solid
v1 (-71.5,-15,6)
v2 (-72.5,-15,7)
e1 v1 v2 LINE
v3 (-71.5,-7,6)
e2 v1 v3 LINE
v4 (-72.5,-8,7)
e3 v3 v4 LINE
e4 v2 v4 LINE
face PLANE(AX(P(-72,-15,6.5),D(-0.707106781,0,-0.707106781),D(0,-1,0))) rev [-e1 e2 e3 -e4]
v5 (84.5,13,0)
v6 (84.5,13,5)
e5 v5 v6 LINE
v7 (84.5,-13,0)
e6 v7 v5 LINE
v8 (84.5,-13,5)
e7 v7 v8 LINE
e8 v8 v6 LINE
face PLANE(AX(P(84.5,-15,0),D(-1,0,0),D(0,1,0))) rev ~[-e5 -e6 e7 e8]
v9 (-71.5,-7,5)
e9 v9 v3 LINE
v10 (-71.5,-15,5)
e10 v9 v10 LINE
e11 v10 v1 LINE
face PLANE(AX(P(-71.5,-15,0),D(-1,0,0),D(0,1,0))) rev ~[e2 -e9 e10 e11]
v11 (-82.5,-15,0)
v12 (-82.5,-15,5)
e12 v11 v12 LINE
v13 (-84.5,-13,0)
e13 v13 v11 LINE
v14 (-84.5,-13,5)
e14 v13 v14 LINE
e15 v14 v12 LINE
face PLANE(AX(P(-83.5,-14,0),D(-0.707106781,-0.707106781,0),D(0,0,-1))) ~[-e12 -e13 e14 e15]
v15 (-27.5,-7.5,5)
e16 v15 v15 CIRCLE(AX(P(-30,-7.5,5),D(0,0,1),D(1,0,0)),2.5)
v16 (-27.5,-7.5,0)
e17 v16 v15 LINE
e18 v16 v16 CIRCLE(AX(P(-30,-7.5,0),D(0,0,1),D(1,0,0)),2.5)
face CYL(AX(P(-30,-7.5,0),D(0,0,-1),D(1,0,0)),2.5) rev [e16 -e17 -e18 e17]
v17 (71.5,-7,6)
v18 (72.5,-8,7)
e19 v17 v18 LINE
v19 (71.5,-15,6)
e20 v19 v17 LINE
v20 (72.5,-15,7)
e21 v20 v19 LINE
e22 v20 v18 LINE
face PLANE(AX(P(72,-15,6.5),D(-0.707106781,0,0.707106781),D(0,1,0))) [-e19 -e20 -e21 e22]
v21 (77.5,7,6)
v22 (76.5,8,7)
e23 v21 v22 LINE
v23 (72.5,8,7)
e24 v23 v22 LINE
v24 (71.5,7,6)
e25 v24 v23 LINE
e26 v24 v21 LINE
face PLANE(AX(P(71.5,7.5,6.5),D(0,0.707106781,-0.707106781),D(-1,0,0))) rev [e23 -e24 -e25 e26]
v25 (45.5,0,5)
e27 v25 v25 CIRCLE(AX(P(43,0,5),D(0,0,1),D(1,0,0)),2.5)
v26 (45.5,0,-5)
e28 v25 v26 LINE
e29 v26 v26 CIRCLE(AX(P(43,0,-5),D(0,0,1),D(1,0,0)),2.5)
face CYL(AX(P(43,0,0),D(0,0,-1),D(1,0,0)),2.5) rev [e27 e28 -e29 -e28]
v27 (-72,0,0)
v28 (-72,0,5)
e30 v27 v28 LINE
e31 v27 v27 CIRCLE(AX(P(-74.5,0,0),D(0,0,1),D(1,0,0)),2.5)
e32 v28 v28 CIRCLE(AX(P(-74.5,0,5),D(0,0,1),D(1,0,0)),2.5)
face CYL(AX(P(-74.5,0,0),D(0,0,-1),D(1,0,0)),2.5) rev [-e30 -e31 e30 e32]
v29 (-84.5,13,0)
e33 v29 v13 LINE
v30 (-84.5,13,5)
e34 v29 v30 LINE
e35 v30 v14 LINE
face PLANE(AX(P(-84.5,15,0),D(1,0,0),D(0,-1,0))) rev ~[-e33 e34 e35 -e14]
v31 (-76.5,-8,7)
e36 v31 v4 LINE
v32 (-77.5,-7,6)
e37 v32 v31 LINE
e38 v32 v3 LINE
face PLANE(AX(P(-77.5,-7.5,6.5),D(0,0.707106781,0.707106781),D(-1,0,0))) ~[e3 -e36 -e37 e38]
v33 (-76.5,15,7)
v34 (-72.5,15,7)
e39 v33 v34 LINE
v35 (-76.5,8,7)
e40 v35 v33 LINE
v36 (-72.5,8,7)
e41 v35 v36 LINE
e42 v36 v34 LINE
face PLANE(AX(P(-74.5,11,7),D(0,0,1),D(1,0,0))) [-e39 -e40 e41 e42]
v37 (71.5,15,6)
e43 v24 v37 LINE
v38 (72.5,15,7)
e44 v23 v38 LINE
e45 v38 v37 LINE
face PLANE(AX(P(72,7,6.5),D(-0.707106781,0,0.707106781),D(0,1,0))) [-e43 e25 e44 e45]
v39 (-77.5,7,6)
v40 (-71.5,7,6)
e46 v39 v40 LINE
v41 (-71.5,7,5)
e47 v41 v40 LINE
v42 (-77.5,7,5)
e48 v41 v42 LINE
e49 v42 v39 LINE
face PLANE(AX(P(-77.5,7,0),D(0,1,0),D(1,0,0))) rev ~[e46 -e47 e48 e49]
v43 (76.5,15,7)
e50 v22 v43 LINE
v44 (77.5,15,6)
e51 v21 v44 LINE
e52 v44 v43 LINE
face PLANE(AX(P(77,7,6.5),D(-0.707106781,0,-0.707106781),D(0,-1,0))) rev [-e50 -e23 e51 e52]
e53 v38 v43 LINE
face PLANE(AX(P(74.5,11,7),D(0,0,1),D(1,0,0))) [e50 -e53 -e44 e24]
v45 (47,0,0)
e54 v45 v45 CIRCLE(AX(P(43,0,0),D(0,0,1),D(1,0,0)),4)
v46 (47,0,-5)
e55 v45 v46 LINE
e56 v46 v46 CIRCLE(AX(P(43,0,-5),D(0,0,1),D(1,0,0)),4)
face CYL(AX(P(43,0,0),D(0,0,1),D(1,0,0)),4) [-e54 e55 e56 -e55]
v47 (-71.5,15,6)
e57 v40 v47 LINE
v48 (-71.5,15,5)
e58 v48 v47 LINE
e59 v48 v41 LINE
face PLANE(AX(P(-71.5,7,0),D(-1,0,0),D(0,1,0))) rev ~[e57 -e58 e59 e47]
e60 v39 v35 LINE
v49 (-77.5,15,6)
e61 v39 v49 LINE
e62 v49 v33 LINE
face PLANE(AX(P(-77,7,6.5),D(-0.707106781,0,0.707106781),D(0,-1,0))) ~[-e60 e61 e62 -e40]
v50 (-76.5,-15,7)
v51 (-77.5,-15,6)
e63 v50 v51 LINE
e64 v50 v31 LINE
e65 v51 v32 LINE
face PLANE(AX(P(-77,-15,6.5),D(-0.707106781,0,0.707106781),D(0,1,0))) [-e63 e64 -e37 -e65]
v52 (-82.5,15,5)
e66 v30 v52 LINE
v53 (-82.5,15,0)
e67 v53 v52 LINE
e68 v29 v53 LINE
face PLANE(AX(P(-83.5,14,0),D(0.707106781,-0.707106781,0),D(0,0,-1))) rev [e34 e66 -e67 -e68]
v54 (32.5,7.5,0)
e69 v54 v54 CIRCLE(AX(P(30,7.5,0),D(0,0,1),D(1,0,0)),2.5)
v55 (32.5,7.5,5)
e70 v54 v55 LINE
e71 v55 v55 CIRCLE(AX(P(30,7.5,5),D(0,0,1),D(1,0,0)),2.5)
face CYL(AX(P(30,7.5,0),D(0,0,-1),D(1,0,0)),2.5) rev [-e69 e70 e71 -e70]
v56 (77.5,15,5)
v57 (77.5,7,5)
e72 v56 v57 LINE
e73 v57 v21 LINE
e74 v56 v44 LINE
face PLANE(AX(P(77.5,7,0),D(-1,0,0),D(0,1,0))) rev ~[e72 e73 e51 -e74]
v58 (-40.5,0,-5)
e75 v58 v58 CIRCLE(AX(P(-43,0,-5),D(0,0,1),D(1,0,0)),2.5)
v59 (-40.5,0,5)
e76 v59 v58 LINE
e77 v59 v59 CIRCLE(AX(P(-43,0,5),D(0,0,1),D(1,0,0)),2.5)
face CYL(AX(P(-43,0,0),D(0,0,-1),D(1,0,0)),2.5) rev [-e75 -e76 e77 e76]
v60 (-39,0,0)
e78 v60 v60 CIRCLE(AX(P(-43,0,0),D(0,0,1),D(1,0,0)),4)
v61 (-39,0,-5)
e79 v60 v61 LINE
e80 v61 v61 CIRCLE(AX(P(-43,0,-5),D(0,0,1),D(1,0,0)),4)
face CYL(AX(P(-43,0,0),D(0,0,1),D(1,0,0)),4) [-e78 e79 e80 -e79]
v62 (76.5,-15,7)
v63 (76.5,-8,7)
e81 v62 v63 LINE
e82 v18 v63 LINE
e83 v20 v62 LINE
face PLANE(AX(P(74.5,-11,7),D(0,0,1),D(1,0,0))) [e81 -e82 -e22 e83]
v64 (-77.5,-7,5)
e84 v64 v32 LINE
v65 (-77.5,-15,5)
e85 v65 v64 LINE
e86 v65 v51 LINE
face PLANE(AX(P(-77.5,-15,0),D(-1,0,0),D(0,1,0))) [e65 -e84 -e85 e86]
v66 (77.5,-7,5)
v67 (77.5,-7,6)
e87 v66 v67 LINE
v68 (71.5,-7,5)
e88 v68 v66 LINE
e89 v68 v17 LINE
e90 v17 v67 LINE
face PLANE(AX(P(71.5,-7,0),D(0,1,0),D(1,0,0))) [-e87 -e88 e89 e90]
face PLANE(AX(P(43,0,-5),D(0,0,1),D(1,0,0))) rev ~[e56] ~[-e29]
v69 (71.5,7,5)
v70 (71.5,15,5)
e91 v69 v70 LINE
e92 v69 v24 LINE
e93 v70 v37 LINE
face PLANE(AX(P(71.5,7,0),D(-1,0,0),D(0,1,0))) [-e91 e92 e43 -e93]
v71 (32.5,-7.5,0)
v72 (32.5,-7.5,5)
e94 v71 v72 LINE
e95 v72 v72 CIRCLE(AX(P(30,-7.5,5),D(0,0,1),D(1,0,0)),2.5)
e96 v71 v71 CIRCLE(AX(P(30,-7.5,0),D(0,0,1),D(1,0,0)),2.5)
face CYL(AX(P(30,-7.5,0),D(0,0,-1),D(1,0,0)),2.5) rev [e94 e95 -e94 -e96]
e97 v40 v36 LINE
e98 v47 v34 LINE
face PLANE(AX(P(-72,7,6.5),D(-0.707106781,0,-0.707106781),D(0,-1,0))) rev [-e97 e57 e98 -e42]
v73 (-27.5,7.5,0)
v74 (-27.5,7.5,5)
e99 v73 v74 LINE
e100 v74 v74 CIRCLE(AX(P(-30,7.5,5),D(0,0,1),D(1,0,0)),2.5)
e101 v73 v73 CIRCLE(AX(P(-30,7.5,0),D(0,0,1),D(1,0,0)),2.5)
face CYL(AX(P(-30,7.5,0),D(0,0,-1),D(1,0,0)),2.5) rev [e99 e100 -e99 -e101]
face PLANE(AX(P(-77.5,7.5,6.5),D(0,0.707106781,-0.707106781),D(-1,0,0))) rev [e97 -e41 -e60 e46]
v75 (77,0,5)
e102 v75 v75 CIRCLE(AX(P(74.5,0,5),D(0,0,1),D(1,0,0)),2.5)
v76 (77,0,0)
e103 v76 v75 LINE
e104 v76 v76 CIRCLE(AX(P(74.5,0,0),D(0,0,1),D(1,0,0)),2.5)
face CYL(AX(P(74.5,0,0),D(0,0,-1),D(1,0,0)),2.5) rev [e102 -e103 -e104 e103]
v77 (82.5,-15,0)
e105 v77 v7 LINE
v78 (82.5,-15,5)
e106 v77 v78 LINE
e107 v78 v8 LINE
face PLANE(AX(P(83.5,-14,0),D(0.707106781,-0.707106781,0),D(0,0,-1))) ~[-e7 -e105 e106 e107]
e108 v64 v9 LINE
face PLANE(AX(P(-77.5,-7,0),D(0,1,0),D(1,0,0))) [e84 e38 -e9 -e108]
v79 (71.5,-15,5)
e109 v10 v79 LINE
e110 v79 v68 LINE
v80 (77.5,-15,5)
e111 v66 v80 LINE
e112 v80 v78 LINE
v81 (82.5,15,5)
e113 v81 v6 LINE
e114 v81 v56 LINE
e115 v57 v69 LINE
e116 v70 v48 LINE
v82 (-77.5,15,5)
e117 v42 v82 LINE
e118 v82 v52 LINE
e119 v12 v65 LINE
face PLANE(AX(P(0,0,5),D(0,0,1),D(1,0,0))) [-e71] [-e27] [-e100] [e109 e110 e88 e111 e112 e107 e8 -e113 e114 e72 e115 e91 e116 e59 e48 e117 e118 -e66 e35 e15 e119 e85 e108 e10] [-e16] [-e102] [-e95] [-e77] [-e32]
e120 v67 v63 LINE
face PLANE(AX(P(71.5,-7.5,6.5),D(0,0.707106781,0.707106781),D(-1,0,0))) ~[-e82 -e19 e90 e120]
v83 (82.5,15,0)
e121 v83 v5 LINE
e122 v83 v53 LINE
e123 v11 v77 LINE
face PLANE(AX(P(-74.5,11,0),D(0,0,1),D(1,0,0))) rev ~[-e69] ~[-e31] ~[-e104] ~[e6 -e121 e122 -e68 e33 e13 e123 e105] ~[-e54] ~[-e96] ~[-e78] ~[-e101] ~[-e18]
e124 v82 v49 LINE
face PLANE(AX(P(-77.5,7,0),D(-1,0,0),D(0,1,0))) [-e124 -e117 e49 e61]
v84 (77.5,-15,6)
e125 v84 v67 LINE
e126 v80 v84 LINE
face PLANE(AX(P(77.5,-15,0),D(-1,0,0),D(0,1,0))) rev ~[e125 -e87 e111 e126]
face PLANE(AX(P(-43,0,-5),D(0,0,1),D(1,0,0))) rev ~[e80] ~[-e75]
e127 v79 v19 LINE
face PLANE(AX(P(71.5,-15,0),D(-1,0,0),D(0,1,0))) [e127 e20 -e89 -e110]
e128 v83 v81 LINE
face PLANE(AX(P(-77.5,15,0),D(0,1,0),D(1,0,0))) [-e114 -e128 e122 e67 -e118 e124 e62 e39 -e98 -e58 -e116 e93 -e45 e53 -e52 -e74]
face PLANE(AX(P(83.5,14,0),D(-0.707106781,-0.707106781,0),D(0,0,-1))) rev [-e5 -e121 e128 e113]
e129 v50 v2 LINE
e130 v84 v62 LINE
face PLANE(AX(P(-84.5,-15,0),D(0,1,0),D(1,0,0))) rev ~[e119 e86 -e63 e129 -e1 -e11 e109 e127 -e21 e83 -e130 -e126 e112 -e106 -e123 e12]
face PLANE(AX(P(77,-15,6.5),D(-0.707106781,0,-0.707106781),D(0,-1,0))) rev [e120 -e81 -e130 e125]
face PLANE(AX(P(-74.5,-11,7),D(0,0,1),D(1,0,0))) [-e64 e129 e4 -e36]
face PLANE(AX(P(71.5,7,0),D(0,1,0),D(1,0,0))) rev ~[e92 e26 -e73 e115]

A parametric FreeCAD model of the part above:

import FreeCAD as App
import Part
import Sketcher

V = App.Vector


def edges_at(feature, points):
    """Names of the edges that pass closest to the given points."""
    edges = feature.Shape.Edges
    near = lambda p: min(range(len(edges)), key=lambda i: edges[i].distToShape(Part.Vertex(*p))[0])
    return sorted({f"Edge{near(p) + 1}" for p in points})


def add_polygon(sketch, points):
    """Adds a closed chain of lines whose ends are joined by coincident constraints."""
    first, n = sketch.GeometryCount, len(points)
    for a, b in zip(points, points[1:] + points[:1]):
        sketch.addGeometry(Part.LineSegment(App.Vector(*a, 0), App.Vector(*b, 0)), False)
    for i in range(n):
        sketch.addConstraint(Sketcher.Constraint("Coincident", first + i, 2, first + (i + 1) % n, 1))

doc = App.newDocument("Part")
body = doc.addObject("PartDesign::Body", "Body")

# Sketch on XY plane
sketch1 = body.newObject("Sketcher::SketchObject", "Sketch")
sketch1.AttachmentSupport = (doc.getObject("XY_Plane"), [""])
sketch1.MapMode = "FlatFace"
add_polygon(sketch1, [(-77.5, 15), (-84.5, 15), (-84.5, -15), (-77.5, -15), (-77.5, -7), (-71.5, -7), (-71.5, -15), (71.5, -15), (71.5, -7), (77.5, -7), (77.5, -15), (84.5, -15), (84.5, 15), (77.5, 15), (77.5, 7), (71.5, 7), (71.5, 15), (-71.5, 15), (-71.5, 7), (-77.5, 7)])  # lines 0-19
sketch1.addGeometry(Part.Circle(V(-30, -7.5, 0), V(0, 0, 1), 2.5), False)  # 20
sketch1.addGeometry(Part.Circle(V(30, -7.5, 0), V(0, 0, 1), 2.5), False)  # 21
sketch1.addGeometry(Part.Circle(V(-74.5, 0, 0), V(0, 0, 1), 2.5), False)  # 22
sketch1.addGeometry(Part.Circle(V(-43, 0, 0), V(0, 0, 1), 2.5), False)  # 23
sketch1.addGeometry(Part.Circle(V(-30, 7.5, 0), V(0, 0, 1), 2.5), False)  # 24
sketch1.addGeometry(Part.Circle(V(43, 0, 0), V(0, 0, 1), 2.5), False)  # 25
sketch1.addGeometry(Part.Circle(V(74.5, 0, 0), V(0, 0, 1), 2.5), False)  # 26
sketch1.addGeometry(Part.Circle(V(30, 7.5, 0), V(0, 0, 1), 2.5), False)  # 27
sketch1.addConstraint([
    Sketcher.Constraint("Horizontal", 0),
    Sketcher.Constraint("Vertical", 1),
    Sketcher.Constraint("Horizontal", 2),
    Sketcher.Constraint("Vertical", 3),
    Sketcher.Constraint("Horizontal", 4),
    Sketcher.Constraint("Vertical", 5),
    Sketcher.Constraint("Horizontal", 6),
    Sketcher.Constraint("Vertical", 7),
    Sketcher.Constraint("Horizontal", 8),
    Sketcher.Constraint("Vertical", 9),
    Sketcher.Constraint("Horizontal", 10),
    Sketcher.Constraint("Vertical", 11),
    Sketcher.Constraint("Horizontal", 12),
    Sketcher.Constraint("Vertical", 13),
    Sketcher.Constraint("Horizontal", 14),
    Sketcher.Constraint("Vertical", 15),
    Sketcher.Constraint("Horizontal", 16),
    Sketcher.Constraint("Vertical", 17),
    Sketcher.Constraint("Horizontal", 18),
    Sketcher.Constraint("Vertical", 19),
    Sketcher.Constraint("Equal", 20, 21),
    Sketcher.Constraint("Equal", 21, 22),
    Sketcher.Constraint("Equal", 22, 23),
    Sketcher.Constraint("Equal", 23, 24),
    Sketcher.Constraint("Equal", 24, 25),
    Sketcher.Constraint("Equal", 25, 26),
    Sketcher.Constraint("Equal", 26, 27),
    Sketcher.Constraint("Symmetric", 21, 3, 24, 3, -1, 1),
    Sketcher.Constraint("Symmetric", 23, 3, 25, 3, -1, 1),
    Sketcher.Constraint("Symmetric", 22, 3, 26, 3, -1, 1),
    Sketcher.Constraint("Symmetric", 20, 3, 27, 3, -1, 1),
    Sketcher.Constraint("Symmetric", 0, 2, 10, 2, -1, 1),
    Sketcher.Constraint("Symmetric", 2, 2, 12, 2, -1, 1),
    Sketcher.Constraint("Symmetric", 4, 2, 14, 2, -1, 1),
    Sketcher.Constraint("Symmetric", 6, 2, 16, 2, -1, 1),
    Sketcher.Constraint("Symmetric", 8, 2, 18, 2, -1, 1),
    Sketcher.Constraint("Symmetric", 20, 3, 21, 3, -2),
    Sketcher.Constraint("Symmetric", 4, 2, 7, 2, -2),
    Sketcher.Constraint("Symmetric", 2, 2, 9, 2, -2),
    Sketcher.Constraint("PointOnObject", 22, 3, -1),
    Sketcher.Constraint("PointOnObject", 23, 3, -1),
    Sketcher.Constraint("Horizontal", 2, 2, 5, 2),
    Sketcher.Constraint("Diameter", 20, 5.0),
    Sketcher.Constraint("DistanceX", 0, 2, 0, 1, 7.0),
    Sketcher.Constraint("DistanceX", 4, 1, 4, 2, 6.0),
    Sketcher.Constraint("DistanceX", 6, 1, 6, 2, 143.0),
    Sketcher.Constraint("DistanceY", 1, 2, 1, 1, 30.0),
    Sketcher.Constraint("DistanceY", 3, 1, 3, 2, 8.0),
    Sketcher.Constraint("DistanceX", 20, 3, -1, 1, 30.0),
    Sketcher.Constraint("DistanceX", 23, 3, -1, 1, 43.0),
    Sketcher.Constraint("DistanceY", 20, 3, 24, 3, 15.0),
    Sketcher.Constraint("DistanceX", 0, 2, 22, 3, 10.0),
])
pad1 = body.newObject("PartDesign::Pad", "Pad")
pad1.Profile = sketch1
pad1.Length = 5

# Sketch on XY plane
sketch2 = body.newObject("Sketcher::SketchObject", "Sketch001")
sketch2.AttachmentSupport = (doc.getObject("XY_Plane"), [""])
sketch2.MapMode = "FlatFace"
add_polygon(sketch2, [(-77.5, 15), (-77.5, 7), (-71.5, 7), (-71.5, 15)])  # lines 0-3
add_polygon(sketch2, [(-77.5, -7), (-77.5, -15), (-71.5, -15), (-71.5, -7)])  # lines 4-7
add_polygon(sketch2, [(71.5, -7), (71.5, -15), (77.5, -15), (77.5, -7)])  # lines 8-11
add_polygon(sketch2, [(71.5, 15), (71.5, 7), (77.5, 7), (77.5, 15)])  # lines 12-15
sketch2.addConstraint([
    Sketcher.Constraint("Vertical", 0),
    Sketcher.Constraint("Horizontal", 1),
    Sketcher.Constraint("Vertical", 2),
    Sketcher.Constraint("Horizontal", 3),
    Sketcher.Constraint("Vertical", 4),
    Sketcher.Constraint("Horizontal", 5),
    Sketcher.Constraint("Vertical", 6),
    Sketcher.Constraint("Horizontal", 7),
    Sketcher.Constraint("Vertical", 8),
    Sketcher.Constraint("Horizontal", 9),
    Sketcher.Constraint("Vertical", 10),
    Sketcher.Constraint("Horizontal", 11),
    Sketcher.Constraint("Vertical", 12),
    Sketcher.Constraint("Horizontal", 13),
    Sketcher.Constraint("Vertical", 14),
    Sketcher.Constraint("Horizontal", 15),
    Sketcher.Constraint("Symmetric", 2, 2, 8, 2, -1, 1),
    Sketcher.Constraint("Symmetric", 0, 2, 10, 2, -1, 1),
    Sketcher.Constraint("Symmetric", 6, 2, 12, 2, -1, 1),
    Sketcher.Constraint("Symmetric", 4, 2, 14, 2, -1, 1),
    Sketcher.Constraint("Symmetric", 5, 2, 8, 2, -2),
    Sketcher.Constraint("Symmetric", 7, 2, 10, 2, -2),
    Sketcher.Constraint("DistanceX", 1, 1, 1, 2, 6.0),
    Sketcher.Constraint("DistanceY", 0, 2, 0, 1, 8.0),
    Sketcher.Constraint("DistanceY", -1, 1, 0, 2, 7.0),
    Sketcher.Constraint("DistanceX", 5, 2, 8, 2, 143.0),
])
pad2 = body.newObject("PartDesign::Pad", "Pad001")
pad2.Profile = sketch2
pad2.Length = 7
doc.recompute()

chamfer = body.newObject("PartDesign::Chamfer", "Chamfer")
chamfer.Base = (pad2, edges_at(pad2, [
    (-77.5, 11, 7),
    (-71.5, 11, 7),
    (-74.5, 7, 7),
    (-74.5, -7, 7),
    (-71.5, -11, 7),
    (-77.5, -11, 7),
    (77.5, 11, 7),
    (74.5, 7, 7),
    (71.5, 11, 7),
    (74.5, -7, 7),
    (77.5, -11, 7),
    (71.5, -11, 7),
]))
chamfer.Size = 1

# Sketch on XY plane
sketch3 = body.newObject("Sketcher::SketchObject", "Sketch002")
sketch3.AttachmentSupport = (doc.getObject("XY_Plane"), [""])
sketch3.MapMode = "FlatFace"
sketch3.addGeometry([
    Part.Circle(V(43, 0, 0), V(0, 0, 1), 4),
    Part.Circle(V(43, 0, 0), V(0, 0, 1), 2.5),
    Part.Circle(V(-43, 0, 0), V(0, 0, 1), 4),
    Part.Circle(V(-43, 0, 0), V(0, 0, 1), 2.5),
], False)
sketch3.addConstraint([
    Sketcher.Constraint("Coincident", 1, 3, 0, 3),
    Sketcher.Constraint("Coincident", 3, 3, 2, 3),
    Sketcher.Constraint("Equal", 0, 2),
    Sketcher.Constraint("Equal", 1, 3),
    Sketcher.Constraint("Symmetric", 0, 3, 2, 3, -1, 1),
    Sketcher.Constraint("PointOnObject", 0, 3, -1),
    Sketcher.Constraint("Diameter", 0, 8.0),
    Sketcher.Constraint("Diameter", 1, 5.0),
    Sketcher.Constraint("DistanceX", -1, 1, 0, 3, 43.0),
])
pad3 = body.newObject("PartDesign::Pad", "Pad002")
pad3.Profile = sketch3
pad3.Length = 5
pad3.Reversed = True
doc.recompute()

chamfer2 = body.newObject("PartDesign::Chamfer", "Chamfer001")
chamfer2.Base = (pad3, edges_at(pad3, [
    (-84.5, -15, 2.5),
    (-84.5, 15, 2.5),
    (84.5, -15, 2.5),
    (84.5, 15, 2.5),
]))
chamfer2.Size = 2

doc.recompute()
